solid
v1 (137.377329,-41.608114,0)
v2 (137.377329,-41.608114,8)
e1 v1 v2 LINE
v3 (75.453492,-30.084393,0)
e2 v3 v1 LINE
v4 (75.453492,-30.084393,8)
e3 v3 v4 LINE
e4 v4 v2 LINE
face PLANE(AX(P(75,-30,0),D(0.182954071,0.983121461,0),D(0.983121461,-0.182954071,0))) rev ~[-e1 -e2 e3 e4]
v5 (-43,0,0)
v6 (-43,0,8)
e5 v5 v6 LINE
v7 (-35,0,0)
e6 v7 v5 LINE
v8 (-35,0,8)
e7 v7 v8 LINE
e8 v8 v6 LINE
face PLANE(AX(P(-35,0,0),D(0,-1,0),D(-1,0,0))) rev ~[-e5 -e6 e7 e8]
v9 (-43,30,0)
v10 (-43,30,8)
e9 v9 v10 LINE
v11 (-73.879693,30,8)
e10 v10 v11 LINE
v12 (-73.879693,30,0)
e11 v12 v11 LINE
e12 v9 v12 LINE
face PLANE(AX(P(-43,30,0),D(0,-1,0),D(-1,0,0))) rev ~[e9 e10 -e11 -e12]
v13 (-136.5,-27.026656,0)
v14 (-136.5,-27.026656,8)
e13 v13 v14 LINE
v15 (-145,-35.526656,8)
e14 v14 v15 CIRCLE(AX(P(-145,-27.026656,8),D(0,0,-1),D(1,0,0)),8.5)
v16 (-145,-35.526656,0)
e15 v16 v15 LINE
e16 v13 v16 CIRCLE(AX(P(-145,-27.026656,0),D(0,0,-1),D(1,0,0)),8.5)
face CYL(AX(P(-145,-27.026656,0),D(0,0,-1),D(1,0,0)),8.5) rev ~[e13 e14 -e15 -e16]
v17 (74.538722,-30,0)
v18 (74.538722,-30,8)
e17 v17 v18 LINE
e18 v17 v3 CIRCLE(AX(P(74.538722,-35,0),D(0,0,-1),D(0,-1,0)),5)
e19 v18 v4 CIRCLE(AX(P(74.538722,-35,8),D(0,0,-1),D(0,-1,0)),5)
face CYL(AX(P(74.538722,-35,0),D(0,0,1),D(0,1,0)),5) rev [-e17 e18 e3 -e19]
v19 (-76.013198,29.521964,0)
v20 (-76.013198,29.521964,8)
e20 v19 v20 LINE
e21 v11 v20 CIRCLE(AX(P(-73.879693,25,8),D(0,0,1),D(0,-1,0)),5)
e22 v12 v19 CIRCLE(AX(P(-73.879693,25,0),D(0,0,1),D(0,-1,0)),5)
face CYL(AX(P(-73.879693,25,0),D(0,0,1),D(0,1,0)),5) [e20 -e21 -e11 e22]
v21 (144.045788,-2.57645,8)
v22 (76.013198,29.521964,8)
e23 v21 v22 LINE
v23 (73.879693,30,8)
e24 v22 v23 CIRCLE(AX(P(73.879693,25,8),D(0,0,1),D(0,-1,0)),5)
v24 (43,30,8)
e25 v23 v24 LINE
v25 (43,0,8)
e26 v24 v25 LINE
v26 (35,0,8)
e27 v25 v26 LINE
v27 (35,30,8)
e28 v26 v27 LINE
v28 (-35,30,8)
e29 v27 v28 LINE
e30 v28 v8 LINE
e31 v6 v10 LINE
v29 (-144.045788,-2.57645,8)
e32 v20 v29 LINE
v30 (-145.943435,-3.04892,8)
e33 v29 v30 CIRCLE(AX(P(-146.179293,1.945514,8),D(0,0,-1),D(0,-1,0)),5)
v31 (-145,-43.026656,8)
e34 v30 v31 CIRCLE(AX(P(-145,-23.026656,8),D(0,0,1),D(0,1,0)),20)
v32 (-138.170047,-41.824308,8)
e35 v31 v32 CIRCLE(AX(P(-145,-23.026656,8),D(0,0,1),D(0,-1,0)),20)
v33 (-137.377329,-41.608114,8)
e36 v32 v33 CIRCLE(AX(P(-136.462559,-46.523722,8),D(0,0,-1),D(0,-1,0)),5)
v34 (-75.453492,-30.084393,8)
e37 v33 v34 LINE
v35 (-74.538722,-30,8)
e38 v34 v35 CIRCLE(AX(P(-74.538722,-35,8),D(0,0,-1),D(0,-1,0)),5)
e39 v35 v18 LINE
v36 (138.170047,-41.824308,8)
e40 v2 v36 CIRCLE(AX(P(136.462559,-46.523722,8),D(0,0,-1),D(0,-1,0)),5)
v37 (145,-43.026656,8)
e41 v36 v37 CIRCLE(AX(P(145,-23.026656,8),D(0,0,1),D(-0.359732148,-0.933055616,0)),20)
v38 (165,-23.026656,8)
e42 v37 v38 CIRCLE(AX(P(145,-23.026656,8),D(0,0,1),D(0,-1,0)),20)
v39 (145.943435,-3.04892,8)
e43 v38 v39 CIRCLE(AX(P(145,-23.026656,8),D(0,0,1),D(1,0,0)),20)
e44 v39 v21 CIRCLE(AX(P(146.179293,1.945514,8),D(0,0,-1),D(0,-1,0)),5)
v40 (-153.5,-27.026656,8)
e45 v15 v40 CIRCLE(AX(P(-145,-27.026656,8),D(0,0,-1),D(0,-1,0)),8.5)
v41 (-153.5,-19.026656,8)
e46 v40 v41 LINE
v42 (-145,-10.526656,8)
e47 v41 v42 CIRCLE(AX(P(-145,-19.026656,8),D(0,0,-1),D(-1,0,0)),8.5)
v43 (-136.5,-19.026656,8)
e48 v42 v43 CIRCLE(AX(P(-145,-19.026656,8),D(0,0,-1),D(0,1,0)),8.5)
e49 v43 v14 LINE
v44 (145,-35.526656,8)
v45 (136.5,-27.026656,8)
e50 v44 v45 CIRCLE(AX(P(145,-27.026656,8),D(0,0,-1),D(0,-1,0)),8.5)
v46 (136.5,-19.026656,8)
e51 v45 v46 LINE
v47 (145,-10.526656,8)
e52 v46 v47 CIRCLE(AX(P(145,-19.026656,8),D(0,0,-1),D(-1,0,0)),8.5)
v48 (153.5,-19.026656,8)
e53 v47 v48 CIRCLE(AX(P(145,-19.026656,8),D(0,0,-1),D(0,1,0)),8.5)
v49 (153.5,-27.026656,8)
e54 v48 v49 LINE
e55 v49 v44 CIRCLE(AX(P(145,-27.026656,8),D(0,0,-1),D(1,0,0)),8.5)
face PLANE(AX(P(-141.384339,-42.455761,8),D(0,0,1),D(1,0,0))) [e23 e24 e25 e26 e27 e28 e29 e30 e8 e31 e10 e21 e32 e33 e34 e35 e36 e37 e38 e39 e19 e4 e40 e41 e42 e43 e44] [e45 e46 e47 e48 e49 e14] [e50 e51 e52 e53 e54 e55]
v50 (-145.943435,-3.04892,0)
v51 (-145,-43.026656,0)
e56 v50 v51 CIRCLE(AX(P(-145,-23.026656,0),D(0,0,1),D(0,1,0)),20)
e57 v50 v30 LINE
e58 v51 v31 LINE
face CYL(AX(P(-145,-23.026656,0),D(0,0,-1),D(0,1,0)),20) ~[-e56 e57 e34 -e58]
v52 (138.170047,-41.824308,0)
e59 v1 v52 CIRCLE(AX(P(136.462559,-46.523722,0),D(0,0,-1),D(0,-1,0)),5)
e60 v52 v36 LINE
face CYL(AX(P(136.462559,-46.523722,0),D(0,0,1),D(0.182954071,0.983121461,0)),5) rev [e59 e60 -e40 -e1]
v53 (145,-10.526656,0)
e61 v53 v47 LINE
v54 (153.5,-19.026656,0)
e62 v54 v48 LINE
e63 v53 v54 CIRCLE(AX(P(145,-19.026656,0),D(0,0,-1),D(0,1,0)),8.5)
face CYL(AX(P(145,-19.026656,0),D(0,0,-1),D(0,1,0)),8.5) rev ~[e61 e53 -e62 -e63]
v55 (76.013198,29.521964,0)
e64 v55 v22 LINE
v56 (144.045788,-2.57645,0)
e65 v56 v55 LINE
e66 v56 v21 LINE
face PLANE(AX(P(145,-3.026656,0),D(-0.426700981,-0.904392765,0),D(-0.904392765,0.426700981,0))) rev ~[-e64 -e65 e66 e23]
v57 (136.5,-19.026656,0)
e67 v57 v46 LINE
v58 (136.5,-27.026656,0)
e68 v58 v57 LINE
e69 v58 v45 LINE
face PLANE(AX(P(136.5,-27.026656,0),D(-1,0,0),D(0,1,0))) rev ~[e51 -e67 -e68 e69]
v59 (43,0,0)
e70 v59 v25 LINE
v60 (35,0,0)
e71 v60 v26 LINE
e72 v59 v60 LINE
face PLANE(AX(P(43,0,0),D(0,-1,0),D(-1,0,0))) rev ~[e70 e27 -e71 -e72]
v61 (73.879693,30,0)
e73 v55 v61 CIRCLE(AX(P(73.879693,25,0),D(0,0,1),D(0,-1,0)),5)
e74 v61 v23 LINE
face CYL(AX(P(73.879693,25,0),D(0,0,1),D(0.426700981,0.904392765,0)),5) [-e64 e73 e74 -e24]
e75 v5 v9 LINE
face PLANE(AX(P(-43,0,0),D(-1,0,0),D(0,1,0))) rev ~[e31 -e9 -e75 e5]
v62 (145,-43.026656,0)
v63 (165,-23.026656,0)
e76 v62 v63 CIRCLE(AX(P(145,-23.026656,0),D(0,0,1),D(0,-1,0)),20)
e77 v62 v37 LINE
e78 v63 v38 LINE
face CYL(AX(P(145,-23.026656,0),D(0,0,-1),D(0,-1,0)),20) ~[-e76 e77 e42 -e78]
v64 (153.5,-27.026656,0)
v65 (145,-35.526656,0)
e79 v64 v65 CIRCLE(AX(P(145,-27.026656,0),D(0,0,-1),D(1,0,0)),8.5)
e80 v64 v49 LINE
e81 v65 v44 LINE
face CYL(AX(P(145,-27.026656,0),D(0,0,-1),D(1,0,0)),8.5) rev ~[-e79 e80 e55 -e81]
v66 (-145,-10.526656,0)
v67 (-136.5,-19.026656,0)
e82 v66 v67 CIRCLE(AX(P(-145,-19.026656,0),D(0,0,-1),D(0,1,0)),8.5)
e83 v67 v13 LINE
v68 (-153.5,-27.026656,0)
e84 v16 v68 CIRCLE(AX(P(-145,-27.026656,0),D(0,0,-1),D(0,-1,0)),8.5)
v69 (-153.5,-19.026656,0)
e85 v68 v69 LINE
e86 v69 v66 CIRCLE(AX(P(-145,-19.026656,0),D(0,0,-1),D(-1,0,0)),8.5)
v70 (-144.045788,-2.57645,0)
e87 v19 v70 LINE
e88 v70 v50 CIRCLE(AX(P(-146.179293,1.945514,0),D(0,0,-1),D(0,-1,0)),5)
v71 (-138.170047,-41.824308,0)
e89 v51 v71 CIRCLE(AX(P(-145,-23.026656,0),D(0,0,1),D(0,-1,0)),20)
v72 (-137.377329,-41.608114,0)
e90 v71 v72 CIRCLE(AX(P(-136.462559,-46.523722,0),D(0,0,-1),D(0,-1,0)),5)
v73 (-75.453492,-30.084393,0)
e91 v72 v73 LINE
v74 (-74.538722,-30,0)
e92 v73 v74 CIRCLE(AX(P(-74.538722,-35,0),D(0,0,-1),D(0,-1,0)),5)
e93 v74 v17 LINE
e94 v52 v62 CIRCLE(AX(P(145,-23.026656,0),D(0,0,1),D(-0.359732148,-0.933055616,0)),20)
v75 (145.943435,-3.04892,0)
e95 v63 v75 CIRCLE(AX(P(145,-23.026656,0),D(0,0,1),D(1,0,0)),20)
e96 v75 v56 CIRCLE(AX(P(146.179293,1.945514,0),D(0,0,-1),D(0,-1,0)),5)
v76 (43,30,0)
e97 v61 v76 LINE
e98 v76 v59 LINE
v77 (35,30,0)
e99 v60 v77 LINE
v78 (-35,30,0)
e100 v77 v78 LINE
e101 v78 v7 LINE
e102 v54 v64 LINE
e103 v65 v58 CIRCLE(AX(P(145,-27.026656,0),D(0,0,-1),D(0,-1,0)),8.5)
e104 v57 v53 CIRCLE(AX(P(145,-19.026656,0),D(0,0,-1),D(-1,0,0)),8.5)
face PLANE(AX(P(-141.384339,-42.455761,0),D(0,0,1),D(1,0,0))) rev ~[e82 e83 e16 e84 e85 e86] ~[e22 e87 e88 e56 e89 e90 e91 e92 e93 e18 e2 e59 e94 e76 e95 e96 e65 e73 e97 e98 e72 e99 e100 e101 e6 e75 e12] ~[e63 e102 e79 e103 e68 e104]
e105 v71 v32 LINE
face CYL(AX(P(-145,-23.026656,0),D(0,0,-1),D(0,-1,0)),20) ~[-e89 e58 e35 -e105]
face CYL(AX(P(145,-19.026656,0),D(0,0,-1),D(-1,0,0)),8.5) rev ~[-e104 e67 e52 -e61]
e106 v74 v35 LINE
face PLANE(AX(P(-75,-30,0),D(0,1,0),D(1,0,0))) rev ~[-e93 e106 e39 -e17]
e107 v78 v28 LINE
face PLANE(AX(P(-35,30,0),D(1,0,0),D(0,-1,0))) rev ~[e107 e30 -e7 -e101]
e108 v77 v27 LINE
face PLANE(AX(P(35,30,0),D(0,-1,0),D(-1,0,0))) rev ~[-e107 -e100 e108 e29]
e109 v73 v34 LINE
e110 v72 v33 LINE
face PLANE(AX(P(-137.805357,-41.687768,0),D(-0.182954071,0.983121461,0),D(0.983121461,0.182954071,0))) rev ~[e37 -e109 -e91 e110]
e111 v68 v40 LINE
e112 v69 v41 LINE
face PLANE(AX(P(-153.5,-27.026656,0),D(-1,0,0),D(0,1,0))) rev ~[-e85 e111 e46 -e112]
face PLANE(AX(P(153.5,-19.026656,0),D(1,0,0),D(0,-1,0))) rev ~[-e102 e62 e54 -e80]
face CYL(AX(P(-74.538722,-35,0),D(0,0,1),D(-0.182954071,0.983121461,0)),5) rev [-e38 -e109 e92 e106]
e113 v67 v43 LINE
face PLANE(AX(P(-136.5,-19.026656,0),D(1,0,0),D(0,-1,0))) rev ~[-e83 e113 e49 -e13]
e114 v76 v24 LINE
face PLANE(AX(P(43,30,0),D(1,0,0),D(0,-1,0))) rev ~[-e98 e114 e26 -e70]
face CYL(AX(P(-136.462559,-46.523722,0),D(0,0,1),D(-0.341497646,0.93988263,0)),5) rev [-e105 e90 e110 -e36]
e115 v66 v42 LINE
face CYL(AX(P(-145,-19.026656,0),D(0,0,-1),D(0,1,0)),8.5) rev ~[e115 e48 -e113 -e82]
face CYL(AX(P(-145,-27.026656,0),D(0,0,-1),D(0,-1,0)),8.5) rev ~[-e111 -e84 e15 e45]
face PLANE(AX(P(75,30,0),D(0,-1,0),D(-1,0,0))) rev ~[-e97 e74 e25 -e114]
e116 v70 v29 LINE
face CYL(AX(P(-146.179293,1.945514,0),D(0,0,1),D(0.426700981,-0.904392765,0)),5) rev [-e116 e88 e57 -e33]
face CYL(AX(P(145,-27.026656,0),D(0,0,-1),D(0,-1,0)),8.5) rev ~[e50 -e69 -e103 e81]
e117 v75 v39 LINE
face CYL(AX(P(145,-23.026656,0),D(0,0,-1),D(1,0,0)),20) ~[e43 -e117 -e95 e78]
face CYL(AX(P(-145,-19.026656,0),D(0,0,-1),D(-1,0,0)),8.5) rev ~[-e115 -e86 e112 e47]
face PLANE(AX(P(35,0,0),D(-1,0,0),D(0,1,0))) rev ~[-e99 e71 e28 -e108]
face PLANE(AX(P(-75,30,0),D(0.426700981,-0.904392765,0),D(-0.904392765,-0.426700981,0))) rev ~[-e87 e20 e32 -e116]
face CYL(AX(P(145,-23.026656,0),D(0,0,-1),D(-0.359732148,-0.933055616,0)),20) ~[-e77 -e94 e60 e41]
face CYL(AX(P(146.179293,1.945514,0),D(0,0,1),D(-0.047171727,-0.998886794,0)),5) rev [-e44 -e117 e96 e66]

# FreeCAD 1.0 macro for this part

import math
import FreeCAD as App
import Part
import Sketcher

V = App.Vector
Q = App.Units.Quantity


def edges_at(feature, points):
    """Names of the edges that pass closest to the given points."""
    edges = feature.Shape.Edges
    near = lambda p: min(range(len(edges)), key=lambda i: edges[i].distToShape(Part.Vertex(*p))[0])
    return sorted({f"Edge{near(p) + 1}" for p in points})

doc = App.newDocument("Part")
body = doc.addObject("PartDesign::Body", "Body")

sketch1 = doc.addObject("Sketcher::SketchObject", "Sketch")
body.addObject(sketch1)
sketch1.AttachmentSupport = (doc.XY_Plane, [""])
sketch1.MapMode = "FlatFace"
sketch1.addGeometry([
    Part.ArcOfCircle(Part.Circle(V(-145, -23, 0), V(0, 0, 1), 20), math.radians(-90), math.radians(-69)),
    Part.LineSegment(V(-138, -42, 0), V(-75, -30, 0)),
    Part.LineSegment(V(-75, -30, 0), V(75, -30, 0)),
    Part.LineSegment(V(75, -30, 0), V(138, -42, 0)),
    Part.ArcOfCircle(Part.Circle(V(145, -23, 0), V(0, 0, 1), 20), math.radians(-111), math.radians(-90)),
    Part.ArcOfCircle(Part.Circle(V(145, -23, 0), V(0, 0, 1), 20), math.radians(-90), math.radians(0)),
    Part.ArcOfCircle(Part.Circle(V(145, -23, 0), V(0, 0, 1), 20), math.radians(0), math.radians(90)),
    Part.LineSegment(V(145, -3, 0), V(75, 30, 0)),
    Part.LineSegment(V(75, 30, 0), V(43, 30, 0)),
    Part.LineSegment(V(43, 30, 0), V(43, 0, 0)),
    Part.LineSegment(V(43, 0, 0), V(35, 0, 0)),
    Part.LineSegment(V(35, 0, 0), V(35, 30, 0)),
    Part.LineSegment(V(35, 30, 0), V(-35, 30, 0)),
    Part.LineSegment(V(-35, 30, 0), V(-35, 0, 0)),
    Part.LineSegment(V(-35, 0, 0), V(-43, 0, 0)),
    Part.LineSegment(V(-43, 0, 0), V(-43, 30, 0)),
    Part.LineSegment(V(-43, 30, 0), V(-75, 30, 0)),
    Part.LineSegment(V(-75, 30, 0), V(-145, -3, 0)),
    Part.ArcOfCircle(Part.Circle(V(-145, -23, 0), V(0, 0, 1), 20), math.radians(90), math.radians(270)),
    Part.ArcOfCircle(Part.Circle(V(-145, -19, 0), V(0, 0, 1), 8), math.radians(0), math.radians(90)),
    Part.LineSegment(V(-136, -19, 0), V(-136, -27, 0)),
    Part.ArcOfCircle(Part.Circle(V(-145, -27, 0), V(0, 0, 1), 8), math.radians(-90), math.radians(0)),
    Part.ArcOfCircle(Part.Circle(V(-145, -27, 0), V(0, 0, 1), 8), math.radians(180), math.radians(270)),
    Part.LineSegment(V(-154, -27, 0), V(-154, -19, 0)),
    Part.ArcOfCircle(Part.Circle(V(-145, -19, 0), V(0, 0, 1), 8), math.radians(90), math.radians(180)),
    Part.ArcOfCircle(Part.Circle(V(145, -27, 0), V(0, 0, 1), 8), math.radians(180), math.radians(270)),
    Part.LineSegment(V(136, -27, 0), V(136, -19, 0)),
    Part.ArcOfCircle(Part.Circle(V(145, -19, 0), V(0, 0, 1), 8), math.radians(90), math.radians(180)),
    Part.ArcOfCircle(Part.Circle(V(145, -19, 0), V(0, 0, 1), 8), math.radians(0), math.radians(90)),
    Part.LineSegment(V(154, -19, 0), V(154, -27, 0)),
    Part.ArcOfCircle(Part.Circle(V(145, -27, 0), V(0, 0, 1), 8), math.radians(-90), math.radians(0)),
], False)
sketch1.addConstraint([
    Sketcher.Constraint("Coincident", 0, 2, 1, 1),
    Sketcher.Constraint("Coincident", 1, 2, 2, 1),
    Sketcher.Constraint("Coincident", 2, 2, 3, 1),
    Sketcher.Constraint("Coincident", 3, 2, 4, 1),
    Sketcher.Constraint("Tangent", 4, 2, 5, 1),
    Sketcher.Constraint("Tangent", 5, 2, 6, 1),
    Sketcher.Constraint("Coincident", 6, 2, 7, 1),
    Sketcher.Constraint("Coincident", 7, 2, 8, 1),
    Sketcher.Constraint("Coincident", 8, 2, 9, 1),
    Sketcher.Constraint("Coincident", 9, 2, 10, 1),
    Sketcher.Constraint("Coincident", 10, 2, 11, 1),
    Sketcher.Constraint("Coincident", 11, 2, 12, 1),
    Sketcher.Constraint("Coincident", 12, 2, 13, 1),
    Sketcher.Constraint("Coincident", 13, 2, 14, 1),
    Sketcher.Constraint("Coincident", 14, 2, 15, 1),
    Sketcher.Constraint("Coincident", 15, 2, 16, 1),
    Sketcher.Constraint("Coincident", 16, 2, 17, 1),
    Sketcher.Constraint("Coincident", 17, 2, 18, 1),
    Sketcher.Constraint("Tangent", 18, 2, 0, 1),
    Sketcher.Constraint("Tangent", 19, 1, 20, 1),
    Sketcher.Constraint("Tangent", 20, 2, 21, 2),
    Sketcher.Constraint("Tangent", 21, 1, 22, 2),
    Sketcher.Constraint("Tangent", 22, 1, 23, 1),
    Sketcher.Constraint("Tangent", 23, 2, 24, 2),
    Sketcher.Constraint("Tangent", 24, 1, 19, 2),
    Sketcher.Constraint("Tangent", 25, 1, 26, 1),
    Sketcher.Constraint("Tangent", 26, 2, 27, 2),
    Sketcher.Constraint("Tangent", 27, 1, 28, 2),
    Sketcher.Constraint("Tangent", 28, 1, 29, 1),
    Sketcher.Constraint("Tangent", 29, 2, 30, 2),
    Sketcher.Constraint("Tangent", 30, 1, 25, 2),
    Sketcher.Constraint("Horizontal", 2),
    Sketcher.Constraint("Horizontal", 8),
    Sketcher.Constraint("Vertical", 9),
    Sketcher.Constraint("Horizontal", 10),
    Sketcher.Constraint("Vertical", 11),
    Sketcher.Constraint("Horizontal", 12),
    Sketcher.Constraint("Vertical", 13),
    Sketcher.Constraint("Horizontal", 14),
    Sketcher.Constraint("Vertical", 15),
    Sketcher.Constraint("Horizontal", 16),
    Sketcher.Constraint("Vertical", 20),
    Sketcher.Constraint("Vertical", 23),
    Sketcher.Constraint("Vertical", 26),
    Sketcher.Constraint("Vertical", 29),
    Sketcher.Constraint("Coincident", 6, 3, 4, 3),
    Sketcher.Constraint("Equal", 0, 4),
    Sketcher.Constraint("Equal", 6, 18),
    Sketcher.Constraint("Equal", 19, 21),
    Sketcher.Constraint("Equal", 21, 22),
    Sketcher.Constraint("Equal", 24, 25),
    Sketcher.Constraint("Equal", 25, 27),
    Sketcher.Constraint("Equal", 27, 28),
    Sketcher.Constraint("Symmetric", 1, 2, 7, 2, -1, 1),
    Sketcher.Constraint("Symmetric", 10, 2, 13, 2, -1, 1),
    Sketcher.Constraint("Symmetric", 2, 2, 16, 2, -1, 1),
    Sketcher.Constraint("Symmetric", 0, 3, 4, 3, -2),
    Sketcher.Constraint("Symmetric", 21, 3, 25, 3, -2),
    Sketcher.Constraint("Symmetric", 9, 2, 14, 2, -2),
    Sketcher.Constraint("Symmetric", 24, 1, 27, 1, -2),
    Sketcher.Constraint("Horizontal", 0, 2, 3, 2),
    Sketcher.Constraint("Horizontal", 18, 3, 5, 2),
    Sketcher.Constraint("Horizontal", 8, 2, 11, 2),
    Sketcher.Constraint("Vertical", 18, 3, 19, 3),
    Sketcher.Constraint("Vertical", 30, 3, 4, 2),
    Sketcher.Constraint("Vertical", 4, 2, 6, 2),
    Sketcher.Constraint("Vertical", 2, 2, 7, 2),
    Sketcher.Constraint("Vertical", 24, 3, 17, 2),
    Sketcher.Constraint("Vertical", 17, 2, 18, 2),
    Sketcher.Constraint("Vertical", 18, 2, 21, 1),
    Sketcher.Constraint("Vertical", 21, 1, 24, 1),
    Sketcher.Constraint("Vertical", 27, 1, 30, 1),
    Sketcher.Constraint("Equal", 14, 20),
    Sketcher.Constraint("Radius", 0, Q("20 mm")),
    Sketcher.Constraint("Radius", 19, Q("8.5 mm")),
    Sketcher.Constraint("DistanceX", 2, 1, 2, 2, Q("150 mm")),
    Sketcher.Constraint("DistanceX", 8, 2, 8, 1, Q("32 mm")),
    Sketcher.Constraint("DistanceX", 10, 2, 10, 1, Q("8 mm")),
    Sketcher.Constraint("DistanceY", 9, 2, 9, 1, Q("30 mm")),
    Sketcher.Constraint("DistanceX", 0, 3, -1, 1, Q("145 mm")),
    Sketcher.Constraint("DistanceY", 0, 3, 19, 3, Q("4 mm")),
    Sketcher.Constraint("Distance", 7, Q("77.4 mm")),
    Sketcher.Constraint("Distance", 1, Q("63.883619 mm")),
])
pad1 = doc.addObject("PartDesign::Pad", "Pad")
body.addObject(pad1)
pad1.Profile = sketch1
pad1.Length = 8
doc.recompute()

fillet = doc.addObject("PartDesign::Fillet", "Fillet")
body.addObject(fillet)
fillet.Base = (pad1, edges_at(pad1, [
    (75, -30, 4),
    (-75, -30, 4),
    (-75, 30, 4),
    (75, 30, 4),
    (145, -3.027, 4),
    (-145, -3.027, 4),
    (-137.805, -41.688, 4),
    (137.805, -41.688, 4),
]))
fillet.Radius = 5

doc.recompute()
